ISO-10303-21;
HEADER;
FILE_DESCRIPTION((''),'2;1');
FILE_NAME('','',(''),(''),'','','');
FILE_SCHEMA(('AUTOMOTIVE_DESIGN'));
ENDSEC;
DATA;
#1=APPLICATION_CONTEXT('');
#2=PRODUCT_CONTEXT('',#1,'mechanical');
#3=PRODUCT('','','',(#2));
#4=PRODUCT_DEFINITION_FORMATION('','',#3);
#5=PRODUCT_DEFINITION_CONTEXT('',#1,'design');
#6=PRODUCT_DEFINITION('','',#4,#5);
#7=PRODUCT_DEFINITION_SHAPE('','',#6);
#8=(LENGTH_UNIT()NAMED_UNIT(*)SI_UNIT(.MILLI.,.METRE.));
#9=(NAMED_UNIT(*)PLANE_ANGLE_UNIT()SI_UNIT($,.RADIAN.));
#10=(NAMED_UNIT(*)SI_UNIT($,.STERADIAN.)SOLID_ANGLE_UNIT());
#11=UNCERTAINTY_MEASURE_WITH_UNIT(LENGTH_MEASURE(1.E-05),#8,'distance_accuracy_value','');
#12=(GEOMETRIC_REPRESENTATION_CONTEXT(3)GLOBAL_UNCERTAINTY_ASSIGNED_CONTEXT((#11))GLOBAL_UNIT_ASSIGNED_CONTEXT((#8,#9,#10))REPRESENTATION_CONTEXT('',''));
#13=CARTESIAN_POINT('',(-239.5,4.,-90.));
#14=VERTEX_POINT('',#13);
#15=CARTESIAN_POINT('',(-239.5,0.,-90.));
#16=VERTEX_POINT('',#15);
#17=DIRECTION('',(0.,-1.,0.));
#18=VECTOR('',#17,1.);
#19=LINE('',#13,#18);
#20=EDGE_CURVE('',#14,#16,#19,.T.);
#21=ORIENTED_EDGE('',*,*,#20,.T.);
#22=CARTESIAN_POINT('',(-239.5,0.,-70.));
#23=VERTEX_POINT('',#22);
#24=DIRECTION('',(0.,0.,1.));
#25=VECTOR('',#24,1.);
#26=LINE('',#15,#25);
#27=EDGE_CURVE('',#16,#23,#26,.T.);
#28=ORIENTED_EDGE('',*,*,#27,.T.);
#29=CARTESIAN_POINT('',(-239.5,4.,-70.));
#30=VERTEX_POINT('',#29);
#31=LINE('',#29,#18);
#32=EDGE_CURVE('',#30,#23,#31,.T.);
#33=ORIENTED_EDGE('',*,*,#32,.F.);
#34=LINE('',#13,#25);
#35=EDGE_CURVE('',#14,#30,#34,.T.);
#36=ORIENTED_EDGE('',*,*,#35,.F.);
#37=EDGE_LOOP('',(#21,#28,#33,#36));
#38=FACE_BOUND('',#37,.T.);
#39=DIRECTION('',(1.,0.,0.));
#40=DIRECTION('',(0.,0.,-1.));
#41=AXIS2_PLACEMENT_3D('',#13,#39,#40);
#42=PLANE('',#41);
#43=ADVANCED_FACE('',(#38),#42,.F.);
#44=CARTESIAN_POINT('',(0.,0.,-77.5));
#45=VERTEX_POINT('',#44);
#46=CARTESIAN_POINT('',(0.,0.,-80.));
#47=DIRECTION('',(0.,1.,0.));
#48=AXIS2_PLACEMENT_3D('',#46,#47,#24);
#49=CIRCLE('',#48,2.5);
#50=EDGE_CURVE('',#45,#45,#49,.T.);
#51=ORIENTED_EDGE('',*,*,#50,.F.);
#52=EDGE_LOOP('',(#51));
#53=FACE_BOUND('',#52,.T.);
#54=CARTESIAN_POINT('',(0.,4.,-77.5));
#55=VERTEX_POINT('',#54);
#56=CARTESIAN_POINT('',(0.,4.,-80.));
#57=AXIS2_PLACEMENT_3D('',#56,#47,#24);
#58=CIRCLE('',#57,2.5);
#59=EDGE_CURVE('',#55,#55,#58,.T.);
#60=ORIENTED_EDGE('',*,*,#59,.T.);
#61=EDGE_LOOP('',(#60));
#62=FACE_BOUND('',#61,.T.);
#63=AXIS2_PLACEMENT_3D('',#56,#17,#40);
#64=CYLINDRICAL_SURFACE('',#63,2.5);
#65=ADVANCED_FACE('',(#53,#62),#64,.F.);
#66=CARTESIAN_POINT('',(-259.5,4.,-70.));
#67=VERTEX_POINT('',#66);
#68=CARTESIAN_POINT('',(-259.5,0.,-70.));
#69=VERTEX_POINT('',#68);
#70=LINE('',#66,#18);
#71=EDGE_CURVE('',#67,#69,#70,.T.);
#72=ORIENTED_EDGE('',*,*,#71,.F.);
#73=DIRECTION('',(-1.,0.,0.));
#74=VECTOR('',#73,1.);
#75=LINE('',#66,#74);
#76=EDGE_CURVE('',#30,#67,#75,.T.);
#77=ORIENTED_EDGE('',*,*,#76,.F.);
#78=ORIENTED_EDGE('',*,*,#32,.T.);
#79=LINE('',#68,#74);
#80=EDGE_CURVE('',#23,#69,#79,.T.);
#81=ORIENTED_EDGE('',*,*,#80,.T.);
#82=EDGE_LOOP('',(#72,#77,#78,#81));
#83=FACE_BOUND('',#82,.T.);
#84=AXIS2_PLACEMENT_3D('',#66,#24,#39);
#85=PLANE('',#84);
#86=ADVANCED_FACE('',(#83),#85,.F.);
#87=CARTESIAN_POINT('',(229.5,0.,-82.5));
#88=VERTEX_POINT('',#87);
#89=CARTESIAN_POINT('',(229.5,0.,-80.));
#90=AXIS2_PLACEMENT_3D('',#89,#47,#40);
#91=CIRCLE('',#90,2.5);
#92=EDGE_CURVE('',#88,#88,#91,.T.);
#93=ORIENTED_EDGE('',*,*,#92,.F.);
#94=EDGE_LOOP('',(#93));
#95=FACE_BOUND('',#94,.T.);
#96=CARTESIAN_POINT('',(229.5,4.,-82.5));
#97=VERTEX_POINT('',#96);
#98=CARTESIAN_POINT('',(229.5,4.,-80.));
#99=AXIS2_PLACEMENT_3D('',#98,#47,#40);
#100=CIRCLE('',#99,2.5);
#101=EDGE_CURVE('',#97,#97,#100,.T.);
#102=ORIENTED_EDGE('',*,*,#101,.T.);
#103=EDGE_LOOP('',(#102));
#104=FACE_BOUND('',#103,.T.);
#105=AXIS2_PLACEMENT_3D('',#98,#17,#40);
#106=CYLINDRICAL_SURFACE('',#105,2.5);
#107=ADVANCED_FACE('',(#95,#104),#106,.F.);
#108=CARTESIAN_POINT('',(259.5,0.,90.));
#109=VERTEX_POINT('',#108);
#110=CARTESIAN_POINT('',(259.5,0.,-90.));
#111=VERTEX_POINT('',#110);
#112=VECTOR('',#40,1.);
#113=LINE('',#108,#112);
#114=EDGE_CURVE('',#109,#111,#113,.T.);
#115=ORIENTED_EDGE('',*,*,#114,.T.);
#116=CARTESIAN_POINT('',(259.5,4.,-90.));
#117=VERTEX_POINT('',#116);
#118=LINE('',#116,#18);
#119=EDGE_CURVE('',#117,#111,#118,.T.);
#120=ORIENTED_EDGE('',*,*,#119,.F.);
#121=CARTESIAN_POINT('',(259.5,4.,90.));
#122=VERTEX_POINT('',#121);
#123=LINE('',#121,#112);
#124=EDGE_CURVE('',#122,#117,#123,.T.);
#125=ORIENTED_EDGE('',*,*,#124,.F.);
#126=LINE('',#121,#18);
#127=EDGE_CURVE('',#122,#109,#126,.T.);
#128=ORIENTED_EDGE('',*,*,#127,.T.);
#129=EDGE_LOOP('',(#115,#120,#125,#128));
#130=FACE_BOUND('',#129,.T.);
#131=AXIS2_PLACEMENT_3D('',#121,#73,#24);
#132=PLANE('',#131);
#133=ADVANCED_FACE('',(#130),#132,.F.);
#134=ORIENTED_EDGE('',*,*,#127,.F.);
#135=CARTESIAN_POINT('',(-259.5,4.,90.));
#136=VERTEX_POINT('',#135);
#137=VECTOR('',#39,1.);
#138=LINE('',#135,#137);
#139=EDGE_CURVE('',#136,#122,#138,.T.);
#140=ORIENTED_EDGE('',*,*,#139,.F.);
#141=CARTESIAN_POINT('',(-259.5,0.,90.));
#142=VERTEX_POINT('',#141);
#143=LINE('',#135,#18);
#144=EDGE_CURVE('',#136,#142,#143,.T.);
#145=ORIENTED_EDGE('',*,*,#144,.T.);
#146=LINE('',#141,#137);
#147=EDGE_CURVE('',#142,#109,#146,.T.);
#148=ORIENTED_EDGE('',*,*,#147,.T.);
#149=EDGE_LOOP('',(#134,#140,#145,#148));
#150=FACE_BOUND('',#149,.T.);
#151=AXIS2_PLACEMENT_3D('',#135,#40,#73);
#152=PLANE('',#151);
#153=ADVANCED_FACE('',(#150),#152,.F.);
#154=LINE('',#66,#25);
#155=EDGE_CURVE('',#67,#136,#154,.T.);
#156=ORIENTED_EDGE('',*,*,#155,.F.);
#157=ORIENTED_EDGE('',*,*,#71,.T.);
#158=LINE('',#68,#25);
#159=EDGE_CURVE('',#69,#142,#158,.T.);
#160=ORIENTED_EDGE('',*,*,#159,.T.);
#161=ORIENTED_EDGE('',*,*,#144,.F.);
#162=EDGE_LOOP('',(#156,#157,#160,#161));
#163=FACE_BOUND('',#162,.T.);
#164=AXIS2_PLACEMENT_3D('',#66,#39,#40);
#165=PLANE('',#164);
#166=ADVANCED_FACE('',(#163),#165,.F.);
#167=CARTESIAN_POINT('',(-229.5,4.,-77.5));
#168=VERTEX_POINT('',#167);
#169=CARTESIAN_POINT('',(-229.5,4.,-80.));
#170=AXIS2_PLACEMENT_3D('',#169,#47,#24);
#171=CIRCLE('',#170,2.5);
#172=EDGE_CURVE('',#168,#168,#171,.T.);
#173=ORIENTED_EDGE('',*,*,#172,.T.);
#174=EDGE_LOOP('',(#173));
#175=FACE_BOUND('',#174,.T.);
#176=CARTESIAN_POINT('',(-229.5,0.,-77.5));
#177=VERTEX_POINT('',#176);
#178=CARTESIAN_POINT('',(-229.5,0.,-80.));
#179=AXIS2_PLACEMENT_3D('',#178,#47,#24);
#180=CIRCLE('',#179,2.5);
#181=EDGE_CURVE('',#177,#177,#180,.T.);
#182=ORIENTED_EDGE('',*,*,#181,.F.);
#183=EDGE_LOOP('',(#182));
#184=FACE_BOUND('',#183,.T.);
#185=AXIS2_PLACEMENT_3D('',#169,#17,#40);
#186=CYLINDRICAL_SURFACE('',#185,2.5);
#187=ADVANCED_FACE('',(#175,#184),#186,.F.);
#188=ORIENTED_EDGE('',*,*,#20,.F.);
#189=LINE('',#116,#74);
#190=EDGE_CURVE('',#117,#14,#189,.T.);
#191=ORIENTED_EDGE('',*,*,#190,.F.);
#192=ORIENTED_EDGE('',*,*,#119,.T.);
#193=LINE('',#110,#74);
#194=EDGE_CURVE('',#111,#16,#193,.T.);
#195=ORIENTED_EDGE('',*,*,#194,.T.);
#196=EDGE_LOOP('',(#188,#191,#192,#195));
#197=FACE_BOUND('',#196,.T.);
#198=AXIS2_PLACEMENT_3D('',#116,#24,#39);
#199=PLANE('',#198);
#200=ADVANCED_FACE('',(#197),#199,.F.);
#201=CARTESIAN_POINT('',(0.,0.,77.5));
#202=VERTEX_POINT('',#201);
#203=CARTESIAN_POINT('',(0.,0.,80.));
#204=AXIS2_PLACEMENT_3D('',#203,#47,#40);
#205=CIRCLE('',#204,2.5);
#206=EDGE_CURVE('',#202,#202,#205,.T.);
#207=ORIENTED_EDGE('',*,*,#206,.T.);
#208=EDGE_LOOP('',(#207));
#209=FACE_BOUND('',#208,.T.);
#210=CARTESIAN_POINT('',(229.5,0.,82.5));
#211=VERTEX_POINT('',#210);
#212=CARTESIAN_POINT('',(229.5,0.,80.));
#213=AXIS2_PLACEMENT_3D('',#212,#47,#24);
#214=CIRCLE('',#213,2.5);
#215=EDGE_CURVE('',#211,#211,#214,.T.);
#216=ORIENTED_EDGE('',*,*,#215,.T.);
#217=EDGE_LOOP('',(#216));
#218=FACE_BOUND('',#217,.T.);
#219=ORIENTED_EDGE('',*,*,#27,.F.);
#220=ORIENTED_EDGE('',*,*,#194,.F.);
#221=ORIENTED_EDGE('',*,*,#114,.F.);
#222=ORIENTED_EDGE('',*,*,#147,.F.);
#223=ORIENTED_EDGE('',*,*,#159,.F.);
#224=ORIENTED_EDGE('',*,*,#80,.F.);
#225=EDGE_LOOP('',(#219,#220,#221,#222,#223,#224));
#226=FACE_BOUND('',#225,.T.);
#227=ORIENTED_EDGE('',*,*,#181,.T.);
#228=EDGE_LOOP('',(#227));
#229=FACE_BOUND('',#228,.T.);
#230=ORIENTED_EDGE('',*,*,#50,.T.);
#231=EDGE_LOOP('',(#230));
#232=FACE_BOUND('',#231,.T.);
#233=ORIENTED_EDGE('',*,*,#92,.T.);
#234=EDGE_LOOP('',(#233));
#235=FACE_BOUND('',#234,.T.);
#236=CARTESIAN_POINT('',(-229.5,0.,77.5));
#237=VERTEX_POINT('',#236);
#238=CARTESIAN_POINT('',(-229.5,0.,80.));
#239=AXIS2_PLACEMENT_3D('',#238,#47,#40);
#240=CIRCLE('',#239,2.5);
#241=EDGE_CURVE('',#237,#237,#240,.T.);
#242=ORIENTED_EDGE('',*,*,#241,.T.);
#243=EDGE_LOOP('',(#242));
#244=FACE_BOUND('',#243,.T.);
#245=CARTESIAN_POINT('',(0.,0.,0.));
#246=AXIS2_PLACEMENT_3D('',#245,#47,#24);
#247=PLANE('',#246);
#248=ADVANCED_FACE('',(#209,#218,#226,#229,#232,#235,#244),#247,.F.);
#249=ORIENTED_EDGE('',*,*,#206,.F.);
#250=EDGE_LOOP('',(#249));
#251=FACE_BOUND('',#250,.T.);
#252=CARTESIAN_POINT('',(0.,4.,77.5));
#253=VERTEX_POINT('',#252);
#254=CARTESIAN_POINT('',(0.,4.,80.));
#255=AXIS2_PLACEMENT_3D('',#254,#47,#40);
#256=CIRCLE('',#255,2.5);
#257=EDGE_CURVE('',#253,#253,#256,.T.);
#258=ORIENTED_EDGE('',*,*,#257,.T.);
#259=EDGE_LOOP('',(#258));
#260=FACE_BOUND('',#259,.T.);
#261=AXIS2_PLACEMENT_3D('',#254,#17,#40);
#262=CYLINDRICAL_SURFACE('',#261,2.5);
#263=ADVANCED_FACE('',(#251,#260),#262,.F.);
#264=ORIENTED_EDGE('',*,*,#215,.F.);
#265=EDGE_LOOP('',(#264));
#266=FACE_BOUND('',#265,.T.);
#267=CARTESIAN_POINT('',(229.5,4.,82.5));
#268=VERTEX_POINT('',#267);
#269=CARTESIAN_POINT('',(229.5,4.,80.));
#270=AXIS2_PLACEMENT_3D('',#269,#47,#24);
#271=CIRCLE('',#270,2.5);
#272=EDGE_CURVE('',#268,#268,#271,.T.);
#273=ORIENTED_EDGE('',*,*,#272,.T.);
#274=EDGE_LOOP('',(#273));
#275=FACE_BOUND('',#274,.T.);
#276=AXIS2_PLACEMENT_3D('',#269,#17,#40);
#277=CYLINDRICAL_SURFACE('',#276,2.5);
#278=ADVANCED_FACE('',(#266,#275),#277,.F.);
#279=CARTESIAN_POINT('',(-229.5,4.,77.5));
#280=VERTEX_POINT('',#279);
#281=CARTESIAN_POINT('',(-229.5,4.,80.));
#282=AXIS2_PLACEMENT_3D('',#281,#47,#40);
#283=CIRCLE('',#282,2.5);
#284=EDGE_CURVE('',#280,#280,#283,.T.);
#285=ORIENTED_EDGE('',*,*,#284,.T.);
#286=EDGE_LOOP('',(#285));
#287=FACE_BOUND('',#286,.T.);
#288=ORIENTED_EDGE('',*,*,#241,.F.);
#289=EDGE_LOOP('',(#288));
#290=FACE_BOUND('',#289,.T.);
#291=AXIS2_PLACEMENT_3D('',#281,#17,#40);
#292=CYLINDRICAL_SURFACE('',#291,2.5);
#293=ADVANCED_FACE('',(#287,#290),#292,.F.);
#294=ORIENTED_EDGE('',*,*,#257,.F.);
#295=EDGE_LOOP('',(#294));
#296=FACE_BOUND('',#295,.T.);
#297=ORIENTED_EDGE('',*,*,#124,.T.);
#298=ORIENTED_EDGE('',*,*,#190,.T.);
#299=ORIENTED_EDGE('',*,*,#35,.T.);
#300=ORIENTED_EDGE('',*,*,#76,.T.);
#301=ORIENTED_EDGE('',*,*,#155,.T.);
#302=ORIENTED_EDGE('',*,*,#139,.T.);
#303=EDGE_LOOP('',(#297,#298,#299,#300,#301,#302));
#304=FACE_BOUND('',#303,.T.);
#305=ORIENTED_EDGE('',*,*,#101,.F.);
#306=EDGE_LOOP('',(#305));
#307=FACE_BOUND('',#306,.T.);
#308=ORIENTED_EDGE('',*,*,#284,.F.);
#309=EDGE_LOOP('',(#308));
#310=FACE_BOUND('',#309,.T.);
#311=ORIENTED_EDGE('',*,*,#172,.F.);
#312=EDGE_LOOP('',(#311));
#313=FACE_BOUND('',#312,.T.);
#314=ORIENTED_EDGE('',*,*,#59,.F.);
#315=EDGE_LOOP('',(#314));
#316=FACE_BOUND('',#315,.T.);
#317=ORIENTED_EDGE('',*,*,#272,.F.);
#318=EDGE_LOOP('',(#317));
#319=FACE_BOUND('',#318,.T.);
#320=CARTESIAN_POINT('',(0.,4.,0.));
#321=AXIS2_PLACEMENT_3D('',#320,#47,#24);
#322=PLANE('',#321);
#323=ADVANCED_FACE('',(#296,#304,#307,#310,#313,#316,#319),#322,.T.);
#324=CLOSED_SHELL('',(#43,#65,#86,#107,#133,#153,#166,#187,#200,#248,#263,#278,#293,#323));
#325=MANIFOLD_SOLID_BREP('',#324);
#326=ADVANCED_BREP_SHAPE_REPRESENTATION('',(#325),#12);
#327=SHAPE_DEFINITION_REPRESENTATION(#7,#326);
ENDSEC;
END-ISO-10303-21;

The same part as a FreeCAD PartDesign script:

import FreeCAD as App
import Part
import Sketcher
from FreeCAD import Vector
Q = App.Units.Quantity

doc = App.newDocument("Part")
body = doc.addObject("PartDesign::Body", "Body")

# Sketch on XZ plane
sketch1 = body.newObject("Sketcher::SketchObject", "Sketch")
sketch1.AttachmentSupport = (doc.getObject("XZ_Plane"), [""])
sketch1.MapMode = "FlatFace"
sketch1.addGeometry(Part.LineSegment(Vector(-259.5, 90, 0), Vector(259.5, 90, 0)), False)
sketch1.addGeometry(Part.LineSegment(Vector(259.5, 90, 0), Vector(259.5, -90, 0)), False)
sketch1.addGeometry(Part.LineSegment(Vector(259.5, -90, 0), Vector(-239.5, -90, 0)), False)
sketch1.addGeometry(Part.LineSegment(Vector(-239.5, -90, 0), Vector(-239.5, -70, 0)), False)
sketch1.addGeometry(Part.LineSegment(Vector(-239.5, -70, 0), Vector(-259.5, -70, 0)), False)
sketch1.addGeometry(Part.LineSegment(Vector(-259.5, -70, 0), Vector(-259.5, 90, 0)), False)
sketch1.addGeometry(Part.Circle(Vector(-229.5, 80, 0), Vector(0, 0, 1), 2.5), False)
sketch1.addGeometry(Part.Circle(Vector(0, 80, 0), Vector(0, 0, 1), 2.5), False)
sketch1.addGeometry(Part.Circle(Vector(229.5, 80, 0), Vector(0, 0, 1), 2.5), False)
sketch1.addGeometry(Part.Circle(Vector(-229.5, -80, 0), Vector(0, 0, 1), 2.5), False)
sketch1.addGeometry(Part.Circle(Vector(0, -80, 0), Vector(0, 0, 1), 2.5), False)
sketch1.addGeometry(Part.Circle(Vector(229.5, -80, 0), Vector(0, 0, 1), 2.5), False)
sketch1.addConstraint(Sketcher.Constraint("Coincident", 0, 2, 1, 1))
sketch1.addConstraint(Sketcher.Constraint("Coincident", 1, 2, 2, 1))
sketch1.addConstraint(Sketcher.Constraint("Coincident", 2, 2, 3, 1))
sketch1.addConstraint(Sketcher.Constraint("Coincident", 3, 2, 4, 1))
sketch1.addConstraint(Sketcher.Constraint("Coincident", 4, 2, 5, 1))
sketch1.addConstraint(Sketcher.Constraint("Coincident", 5, 2, 0, 1))
sketch1.addConstraint(Sketcher.Constraint("Horizontal", 0))
sketch1.addConstraint(Sketcher.Constraint("Vertical", 1))
sketch1.addConstraint(Sketcher.Constraint("Horizontal", 2))
sketch1.addConstraint(Sketcher.Constraint("Vertical", 3))
sketch1.addConstraint(Sketcher.Constraint("Horizontal", 4))
sketch1.addConstraint(Sketcher.Constraint("Vertical", 5))
sketch1.addConstraint(Sketcher.Constraint("Equal", 6, 7))
sketch1.addConstraint(Sketcher.Constraint("Equal", 7, 8))
sketch1.addConstraint(Sketcher.Constraint("Equal", 8, 9))
sketch1.addConstraint(Sketcher.Constraint("Equal", 9, 10))
sketch1.addConstraint(Sketcher.Constraint("Equal", 10, 11))
sketch1.addConstraint(Sketcher.Constraint("Symmetric", 8, 3, 9, 3, -1, 1))
sketch1.addConstraint(Sketcher.Constraint("Symmetric", 7, 3, 10, 3, -1, 1))
sketch1.addConstraint(Sketcher.Constraint("Symmetric", 6, 3, 11, 3, -1, 1))
sketch1.addConstraint(Sketcher.Constraint("Symmetric", 1, 2, 5, 2, -1, 1))
sketch1.addConstraint(Sketcher.Constraint("Symmetric", 6, 3, 8, 3, -2))
sketch1.addConstraint(Sketcher.Constraint("PointOnObject", 7, 3, -2))
sketch1.addConstraint(Sketcher.Constraint("Horizontal", 6, 3, 7, 3))
sketch1.addConstraint(Sketcher.Constraint("Equal", 4, 3))
sketch1.addConstraint(Sketcher.Constraint("Diameter", 6, Q("5 mm")))
sketch1.addConstraint(Sketcher.Constraint("DistanceX", 0, 1, 0, 2, Q("519 mm")))
sketch1.addConstraint(Sketcher.Constraint("DistanceX", 2, 2, 2, 1, Q("499 mm")))
sketch1.addConstraint(Sketcher.Constraint("DistanceY", 1, 2, 1, 1, Q("180 mm")))
sketch1.addConstraint(Sketcher.Constraint("DistanceY", -1, 1, 6, 3, Q("80 mm")))
sketch1.addConstraint(Sketcher.Constraint("DistanceX", 6, 3, 8, 3, Q("459 mm")))
pad1 = body.newObject("PartDesign::Pad", "Pad")
pad1.Profile = sketch1
pad1.Length = 4
pad1.Reversed = True

doc.recompute()
